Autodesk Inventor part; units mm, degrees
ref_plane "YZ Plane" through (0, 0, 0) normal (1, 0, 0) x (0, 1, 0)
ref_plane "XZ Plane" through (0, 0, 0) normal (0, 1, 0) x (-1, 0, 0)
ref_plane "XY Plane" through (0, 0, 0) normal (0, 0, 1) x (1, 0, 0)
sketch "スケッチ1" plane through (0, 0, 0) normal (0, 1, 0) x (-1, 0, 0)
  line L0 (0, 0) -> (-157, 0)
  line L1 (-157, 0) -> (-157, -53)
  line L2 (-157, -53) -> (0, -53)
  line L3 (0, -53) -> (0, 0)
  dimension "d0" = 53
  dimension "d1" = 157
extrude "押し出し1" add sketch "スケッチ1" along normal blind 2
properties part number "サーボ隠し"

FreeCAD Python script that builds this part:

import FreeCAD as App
import Part
import Sketcher
Q = App.Units.Quantity


def add_polygon(sketch, points):
    """Adds a closed chain of lines whose ends are joined by coincident constraints."""
    first, n = sketch.GeometryCount, len(points)
    for a, b in zip(points, points[1:] + points[:1]):
        sketch.addGeometry(Part.LineSegment(App.Vector(*a, 0), App.Vector(*b, 0)), False)
    for i in range(n):
        sketch.addConstraint(Sketcher.Constraint("Coincident", first + i, 2, first + (i + 1) % n, 1))

doc = App.newDocument("Part")
body = doc.addObject("PartDesign::Body", "Body")

# Sketch on XZ plane
sketch1 = body.newObject("Sketcher::SketchObject", "Sketch")
sketch1.AttachmentSupport = (doc.getObject("XZ_Plane"), [""])
sketch1.MapMode = "FlatFace"
add_polygon(sketch1, [(0, -53), (0, 0), (157, 0), (157, -53)])  # lines 0-3
sketch1.addConstraint([
    Sketcher.Constraint("Vertical", 0),
    Sketcher.Constraint("Horizontal", 1),
    Sketcher.Constraint("Vertical", 2),
    Sketcher.Constraint("Horizontal", 3),
    Sketcher.Constraint("Coincident", 0, 2, -1, 1),
    Sketcher.Constraint("DistanceX", 1, 1, 1, 2, Q("157 mm")),
    Sketcher.Constraint("DistanceY", 0, 1, 0, 2, Q("53 mm")),
])
pad1 = body.newObject("PartDesign::Pad", "Pad")
pad1.Profile = sketch1
pad1.Length = 2
pad1.Reversed = True

doc.recompute()
